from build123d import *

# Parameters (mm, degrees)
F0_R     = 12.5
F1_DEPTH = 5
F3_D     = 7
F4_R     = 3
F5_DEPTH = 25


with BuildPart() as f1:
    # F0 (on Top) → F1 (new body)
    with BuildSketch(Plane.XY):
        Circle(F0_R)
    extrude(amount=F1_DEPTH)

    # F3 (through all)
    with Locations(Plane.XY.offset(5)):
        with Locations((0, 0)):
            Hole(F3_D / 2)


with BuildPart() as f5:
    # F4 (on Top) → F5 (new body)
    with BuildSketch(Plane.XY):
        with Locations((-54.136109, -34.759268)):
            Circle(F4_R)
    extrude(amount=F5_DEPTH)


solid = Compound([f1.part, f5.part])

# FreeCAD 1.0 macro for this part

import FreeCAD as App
import Part
import Sketcher

doc = App.newDocument("Part")
body = doc.addObject("PartDesign::Body", "Body")

sketch1 = body.newObject("Sketcher::SketchObject", "Sketch")
sketch1.AttachmentSupport = (doc.getObject("XY_Plane"), [""])
sketch1.MapMode = "FlatFace"
sketch1.addGeometry(Part.Circle(App.Vector(0, 0, 0), App.Vector(0, 0, 1), 12), False)
sketch1.addConstraint([
    Sketcher.Constraint("Coincident", 0, 3, -1, 1),
    Sketcher.Constraint("Diameter", 0, 25.0),
])
pad1 = body.newObject("PartDesign::Pad", "Pad")
pad1.Profile = sketch1
pad1.Length = 5

sketch2 = body.newObject("Sketcher::SketchObject", "Sketch001")
sketch2.AttachmentSupport = (doc.getObject("XY_Plane"), [""])
sketch2.MapMode = "FlatFace"
sketch2.AttachmentOffset = App.Placement(App.Vector(0, 0, 5), App.Rotation())
sketch2.addGeometry(Part.Circle(App.Vector(0, 0, 0), App.Vector(0, 0, 1), 3.5), False)
sketch2.addConstraint([
    Sketcher.Constraint("Coincident", 0, 3, -1, 1),
    Sketcher.Constraint("Diameter", 0, 7.0),
])
doc.recompute()
hole = body.newObject("PartDesign::Hole", "Hole")
hole.Profile = sketch2
hole.ThreadType = "None"
hole.Diameter = 7
hole.DepthType = "ThroughAll"
body2 = doc.addObject("PartDesign::Body", "Body001")

sketch3 = body2.newObject("Sketcher::SketchObject", "Sketch002")
sketch3.AttachmentSupport = (doc.getObject("XY_Plane001"), [""])
sketch3.MapMode = "FlatFace"
sketch3.addGeometry(Part.Circle(App.Vector(-54.1, -34.8, 0), App.Vector(0, 0, 1), 3), False)
sketch3.addConstraint([
    Sketcher.Constraint("Diameter", 0, 6.0),
    Sketcher.Constraint("DistanceX", 0, 3, -1, 1, 54.136109),
    Sketcher.Constraint("DistanceY", 0, 3, -1, 1, 34.759268),
])
pad2 = body2.newObject("PartDesign::Pad", "Pad001")
pad2.Profile = sketch3
pad2.Length = 25

doc.recompute()
